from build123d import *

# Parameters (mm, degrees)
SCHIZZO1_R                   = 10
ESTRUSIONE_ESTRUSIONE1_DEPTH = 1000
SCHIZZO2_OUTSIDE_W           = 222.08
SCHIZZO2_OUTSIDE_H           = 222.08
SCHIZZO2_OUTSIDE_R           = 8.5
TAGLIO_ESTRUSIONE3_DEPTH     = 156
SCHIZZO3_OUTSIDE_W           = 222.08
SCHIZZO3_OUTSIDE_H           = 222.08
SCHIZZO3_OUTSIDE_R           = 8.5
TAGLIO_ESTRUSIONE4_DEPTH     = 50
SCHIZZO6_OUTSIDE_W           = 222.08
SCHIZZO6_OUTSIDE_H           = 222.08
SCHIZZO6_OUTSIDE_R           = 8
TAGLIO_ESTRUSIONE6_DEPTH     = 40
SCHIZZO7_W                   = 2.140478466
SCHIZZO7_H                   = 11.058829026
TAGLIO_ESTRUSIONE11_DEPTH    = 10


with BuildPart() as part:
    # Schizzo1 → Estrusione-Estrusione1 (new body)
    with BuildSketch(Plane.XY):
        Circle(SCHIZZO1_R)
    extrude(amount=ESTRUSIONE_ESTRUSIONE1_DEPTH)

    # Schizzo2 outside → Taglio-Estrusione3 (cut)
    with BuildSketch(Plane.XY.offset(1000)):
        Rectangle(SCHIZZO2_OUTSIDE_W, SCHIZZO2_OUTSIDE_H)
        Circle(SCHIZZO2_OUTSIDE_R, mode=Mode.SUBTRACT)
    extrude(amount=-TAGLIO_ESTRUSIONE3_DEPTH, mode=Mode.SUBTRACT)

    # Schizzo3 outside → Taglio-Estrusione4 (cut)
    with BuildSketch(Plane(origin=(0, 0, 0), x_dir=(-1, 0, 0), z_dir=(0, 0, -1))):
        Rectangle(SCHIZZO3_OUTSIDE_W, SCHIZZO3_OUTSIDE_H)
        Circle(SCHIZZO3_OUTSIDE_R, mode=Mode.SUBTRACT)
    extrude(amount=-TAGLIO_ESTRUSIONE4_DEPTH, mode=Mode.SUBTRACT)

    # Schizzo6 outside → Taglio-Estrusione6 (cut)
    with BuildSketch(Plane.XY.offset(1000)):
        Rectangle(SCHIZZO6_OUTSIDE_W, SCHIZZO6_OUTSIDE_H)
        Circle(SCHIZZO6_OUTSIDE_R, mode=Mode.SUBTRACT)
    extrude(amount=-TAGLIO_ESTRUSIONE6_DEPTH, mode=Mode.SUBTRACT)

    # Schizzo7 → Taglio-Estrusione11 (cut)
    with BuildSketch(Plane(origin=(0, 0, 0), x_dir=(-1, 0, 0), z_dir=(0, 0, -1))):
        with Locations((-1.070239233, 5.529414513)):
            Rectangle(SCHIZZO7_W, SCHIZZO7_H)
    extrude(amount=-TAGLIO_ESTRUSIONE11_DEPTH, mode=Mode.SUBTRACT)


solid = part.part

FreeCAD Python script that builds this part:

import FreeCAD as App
import Part
import Sketcher
Q = App.Units.Quantity


def add_polygon(sketch, points):
    """Adds a closed chain of lines whose ends are joined by coincident constraints."""
    first, n = sketch.GeometryCount, len(points)
    for a, b in zip(points, points[1:] + points[:1]):
        sketch.addGeometry(Part.LineSegment(App.Vector(*a, 0), App.Vector(*b, 0)), False)
    for i in range(n):
        sketch.addConstraint(Sketcher.Constraint("Coincident", first + i, 2, first + (i + 1) % n, 1))

doc = App.newDocument("Part")
body = doc.addObject("PartDesign::Body", "Body")

# Sketch on XY plane
sketch1 = body.newObject("Sketcher::SketchObject", "Sketch")
sketch1.AttachmentSupport = (doc.getObject("XY_Plane"), [""])
sketch1.MapMode = "FlatFace"
sketch1.addGeometry(Part.Circle(App.Vector(0, 0, 0), App.Vector(0, 0, 1), 10), False)
sketch1.addConstraint(Sketcher.Constraint("Coincident", 0, 3, -1, 1))
sketch1.addConstraint(Sketcher.Constraint("Diameter", 0, Q("20 mm")))
pad1 = body.newObject("PartDesign::Pad", "Pad")
pad1.Profile = sketch1
pad1.Length = 1000

# Sketch on XY plane
sketch2 = body.newObject("Sketcher::SketchObject", "Sketch001")
sketch2.AttachmentSupport = (doc.getObject("XY_Plane"), [""])
sketch2.MapMode = "FlatFace"
sketch2.AttachmentOffset = App.Placement(App.Vector(0, 0, 1000), App.Rotation())
add_polygon(sketch2, [(-111, 111), (-111, -111), (111, -111), (111, 111)])  # lines 0-3
sketch2.addGeometry(Part.Circle(App.Vector(0, 0, 0), App.Vector(0, 0, 1), 8), False)  # 4
sketch2.addConstraint(Sketcher.Constraint("Vertical", 0))
sketch2.addConstraint(Sketcher.Constraint("Horizontal", 1))
sketch2.addConstraint(Sketcher.Constraint("Vertical", 2))
sketch2.addConstraint(Sketcher.Constraint("Horizontal", 3))
sketch2.addConstraint(Sketcher.Constraint("Coincident", 4, 3, -1, 1))
sketch2.addConstraint(Sketcher.Constraint("Symmetric", 0, 2, 2, 2, -1, 1))
sketch2.addConstraint(Sketcher.Constraint("Equal", 3, 0))
sketch2.addConstraint(Sketcher.Constraint("Diameter", 4, Q("17 mm")))
sketch2.addConstraint(Sketcher.Constraint("DistanceX", 1, 1, 1, 2, Q("222.08 mm")))
pocket1 = body.newObject("PartDesign::Pocket", "Pocket")
pocket1.Profile = sketch2
pocket1.Length = 156

# Sketch on XY plane
sketch3 = body.newObject("Sketcher::SketchObject", "Sketch002")
sketch3.AttachmentSupport = (doc.getObject("XY_Plane"), [""])
sketch3.MapMode = "FlatFace"
add_polygon(sketch3, [(111, 111), (111, -111), (-111, -111), (-111, 111)])  # lines 0-3
sketch3.addGeometry(Part.Circle(App.Vector(0, 0, 0), App.Vector(0, 0, 1), 8), False)  # 4
sketch3.addConstraint(Sketcher.Constraint("Vertical", 0))
sketch3.addConstraint(Sketcher.Constraint("Horizontal", 1))
sketch3.addConstraint(Sketcher.Constraint("Vertical", 2))
sketch3.addConstraint(Sketcher.Constraint("Horizontal", 3))
sketch3.addConstraint(Sketcher.Constraint("Coincident", 4, 3, -1, 1))
sketch3.addConstraint(Sketcher.Constraint("Symmetric", 0, 2, 2, 2, -1, 1))
sketch3.addConstraint(Sketcher.Constraint("Equal", 3, 0))
sketch3.addConstraint(Sketcher.Constraint("Diameter", 4, Q("17 mm")))
sketch3.addConstraint(Sketcher.Constraint("DistanceX", 1, 2, 1, 1, Q("222.08 mm")))
pocket2 = body.newObject("PartDesign::Pocket", "Pocket001")
pocket2.Profile = sketch3
pocket2.Length = 50
pocket2.Reversed = True

# Sketch on XY plane
sketch4 = body.newObject("Sketcher::SketchObject", "Sketch003")
sketch4.AttachmentSupport = (doc.getObject("XY_Plane"), [""])
sketch4.MapMode = "FlatFace"
sketch4.AttachmentOffset = App.Placement(App.Vector(0, 0, 1000), App.Rotation())
add_polygon(sketch4, [(-111, 111), (-111, -111), (111, -111), (111, 111)])  # lines 0-3
sketch4.addGeometry(Part.Circle(App.Vector(0, 0, 0), App.Vector(0, 0, 1), 8), False)  # 4
sketch4.addConstraint(Sketcher.Constraint("Vertical", 0))
sketch4.addConstraint(Sketcher.Constraint("Horizontal", 1))
sketch4.addConstraint(Sketcher.Constraint("Vertical", 2))
sketch4.addConstraint(Sketcher.Constraint("Horizontal", 3))
sketch4.addConstraint(Sketcher.Constraint("Coincident", 4, 3, -1, 1))
sketch4.addConstraint(Sketcher.Constraint("Symmetric", 0, 2, 2, 2, -1, 1))
sketch4.addConstraint(Sketcher.Constraint("Equal", 3, 0))
sketch4.addConstraint(Sketcher.Constraint("Diameter", 4, Q("16 mm")))
sketch4.addConstraint(Sketcher.Constraint("DistanceX", 1, 1, 1, 2, Q("222.08 mm")))
pocket3 = body.newObject("PartDesign::Pocket", "Pocket002")
pocket3.Profile = sketch4
pocket3.Length = 40

# Sketch on XY plane
sketch5 = body.newObject("Sketcher::SketchObject", "Sketch004")
sketch5.AttachmentSupport = (doc.getObject("XY_Plane"), [""])
sketch5.MapMode = "FlatFace"
add_polygon(sketch5, [(2.1, 11.1), (2.1, 0), (0, 0), (0, 11.1)])  # lines 0-3
sketch5.addConstraint(Sketcher.Constraint("Vertical", 0))
sketch5.addConstraint(Sketcher.Constraint("Horizontal", 1))
sketch5.addConstraint(Sketcher.Constraint("Vertical", 2))
sketch5.addConstraint(Sketcher.Constraint("Horizontal", 3))
sketch5.addConstraint(Sketcher.Constraint("Coincident", 1, 2, -1, 1))
sketch5.addConstraint(Sketcher.Constraint("DistanceX", 1, 2, 1, 1, Q("2.140478 mm")))
sketch5.addConstraint(Sketcher.Constraint("DistanceY", 0, 2, 0, 1, Q("11.058829 mm")))
pocket4 = body.newObject("PartDesign::Pocket", "Pocket003")
pocket4.Profile = sketch5
pocket4.Length = 10
pocket4.Reversed = True

doc.recompute()
